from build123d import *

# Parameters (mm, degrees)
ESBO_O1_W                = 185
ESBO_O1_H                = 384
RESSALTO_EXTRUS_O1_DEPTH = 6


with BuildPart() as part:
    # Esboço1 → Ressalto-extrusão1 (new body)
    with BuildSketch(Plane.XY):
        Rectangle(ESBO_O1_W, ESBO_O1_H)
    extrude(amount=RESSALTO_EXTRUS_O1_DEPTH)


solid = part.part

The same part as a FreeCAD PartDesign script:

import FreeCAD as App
import Part
import Sketcher

doc = App.newDocument("Part")
body = doc.addObject("PartDesign::Body", "Body")

sketch1 = body.newObject("Sketcher::SketchObject", "Sketch")
sketch1.AttachmentSupport = (doc.getObject("XY_Plane"), [""])
sketch1.MapMode = "FlatFace"
sketch1.addGeometry([
    Part.LineSegment(App.Vector(-92, 192, 0), App.Vector(-92, -192, 0)),
    Part.LineSegment(App.Vector(-92, -192, 0), App.Vector(92, -192, 0)),
    Part.LineSegment(App.Vector(92, -192, 0), App.Vector(92, 192, 0)),
    Part.LineSegment(App.Vector(92, 192, 0), App.Vector(-92, 192, 0)),
], False)
sketch1.addConstraint([
    Sketcher.Constraint("Coincident", 0, 2, 1, 1),
    Sketcher.Constraint("Coincident", 1, 2, 2, 1),
    Sketcher.Constraint("Coincident", 2, 2, 3, 1),
    Sketcher.Constraint("Coincident", 3, 2, 0, 1),
    Sketcher.Constraint("Vertical", 0),
    Sketcher.Constraint("Horizontal", 1),
    Sketcher.Constraint("Vertical", 2),
    Sketcher.Constraint("Horizontal", 3),
    Sketcher.Constraint("Symmetric", 0, 2, 2, 2, -1, 1),
    Sketcher.Constraint("DistanceX", 1, 1, 1, 2, 185.0),
    Sketcher.Constraint("DistanceY", 0, 2, 0, 1, 384.0),
])
pad1 = body.newObject("PartDesign::Pad", "Pad")
pad1.Profile = sketch1
pad1.Length = 6

doc.recompute()
